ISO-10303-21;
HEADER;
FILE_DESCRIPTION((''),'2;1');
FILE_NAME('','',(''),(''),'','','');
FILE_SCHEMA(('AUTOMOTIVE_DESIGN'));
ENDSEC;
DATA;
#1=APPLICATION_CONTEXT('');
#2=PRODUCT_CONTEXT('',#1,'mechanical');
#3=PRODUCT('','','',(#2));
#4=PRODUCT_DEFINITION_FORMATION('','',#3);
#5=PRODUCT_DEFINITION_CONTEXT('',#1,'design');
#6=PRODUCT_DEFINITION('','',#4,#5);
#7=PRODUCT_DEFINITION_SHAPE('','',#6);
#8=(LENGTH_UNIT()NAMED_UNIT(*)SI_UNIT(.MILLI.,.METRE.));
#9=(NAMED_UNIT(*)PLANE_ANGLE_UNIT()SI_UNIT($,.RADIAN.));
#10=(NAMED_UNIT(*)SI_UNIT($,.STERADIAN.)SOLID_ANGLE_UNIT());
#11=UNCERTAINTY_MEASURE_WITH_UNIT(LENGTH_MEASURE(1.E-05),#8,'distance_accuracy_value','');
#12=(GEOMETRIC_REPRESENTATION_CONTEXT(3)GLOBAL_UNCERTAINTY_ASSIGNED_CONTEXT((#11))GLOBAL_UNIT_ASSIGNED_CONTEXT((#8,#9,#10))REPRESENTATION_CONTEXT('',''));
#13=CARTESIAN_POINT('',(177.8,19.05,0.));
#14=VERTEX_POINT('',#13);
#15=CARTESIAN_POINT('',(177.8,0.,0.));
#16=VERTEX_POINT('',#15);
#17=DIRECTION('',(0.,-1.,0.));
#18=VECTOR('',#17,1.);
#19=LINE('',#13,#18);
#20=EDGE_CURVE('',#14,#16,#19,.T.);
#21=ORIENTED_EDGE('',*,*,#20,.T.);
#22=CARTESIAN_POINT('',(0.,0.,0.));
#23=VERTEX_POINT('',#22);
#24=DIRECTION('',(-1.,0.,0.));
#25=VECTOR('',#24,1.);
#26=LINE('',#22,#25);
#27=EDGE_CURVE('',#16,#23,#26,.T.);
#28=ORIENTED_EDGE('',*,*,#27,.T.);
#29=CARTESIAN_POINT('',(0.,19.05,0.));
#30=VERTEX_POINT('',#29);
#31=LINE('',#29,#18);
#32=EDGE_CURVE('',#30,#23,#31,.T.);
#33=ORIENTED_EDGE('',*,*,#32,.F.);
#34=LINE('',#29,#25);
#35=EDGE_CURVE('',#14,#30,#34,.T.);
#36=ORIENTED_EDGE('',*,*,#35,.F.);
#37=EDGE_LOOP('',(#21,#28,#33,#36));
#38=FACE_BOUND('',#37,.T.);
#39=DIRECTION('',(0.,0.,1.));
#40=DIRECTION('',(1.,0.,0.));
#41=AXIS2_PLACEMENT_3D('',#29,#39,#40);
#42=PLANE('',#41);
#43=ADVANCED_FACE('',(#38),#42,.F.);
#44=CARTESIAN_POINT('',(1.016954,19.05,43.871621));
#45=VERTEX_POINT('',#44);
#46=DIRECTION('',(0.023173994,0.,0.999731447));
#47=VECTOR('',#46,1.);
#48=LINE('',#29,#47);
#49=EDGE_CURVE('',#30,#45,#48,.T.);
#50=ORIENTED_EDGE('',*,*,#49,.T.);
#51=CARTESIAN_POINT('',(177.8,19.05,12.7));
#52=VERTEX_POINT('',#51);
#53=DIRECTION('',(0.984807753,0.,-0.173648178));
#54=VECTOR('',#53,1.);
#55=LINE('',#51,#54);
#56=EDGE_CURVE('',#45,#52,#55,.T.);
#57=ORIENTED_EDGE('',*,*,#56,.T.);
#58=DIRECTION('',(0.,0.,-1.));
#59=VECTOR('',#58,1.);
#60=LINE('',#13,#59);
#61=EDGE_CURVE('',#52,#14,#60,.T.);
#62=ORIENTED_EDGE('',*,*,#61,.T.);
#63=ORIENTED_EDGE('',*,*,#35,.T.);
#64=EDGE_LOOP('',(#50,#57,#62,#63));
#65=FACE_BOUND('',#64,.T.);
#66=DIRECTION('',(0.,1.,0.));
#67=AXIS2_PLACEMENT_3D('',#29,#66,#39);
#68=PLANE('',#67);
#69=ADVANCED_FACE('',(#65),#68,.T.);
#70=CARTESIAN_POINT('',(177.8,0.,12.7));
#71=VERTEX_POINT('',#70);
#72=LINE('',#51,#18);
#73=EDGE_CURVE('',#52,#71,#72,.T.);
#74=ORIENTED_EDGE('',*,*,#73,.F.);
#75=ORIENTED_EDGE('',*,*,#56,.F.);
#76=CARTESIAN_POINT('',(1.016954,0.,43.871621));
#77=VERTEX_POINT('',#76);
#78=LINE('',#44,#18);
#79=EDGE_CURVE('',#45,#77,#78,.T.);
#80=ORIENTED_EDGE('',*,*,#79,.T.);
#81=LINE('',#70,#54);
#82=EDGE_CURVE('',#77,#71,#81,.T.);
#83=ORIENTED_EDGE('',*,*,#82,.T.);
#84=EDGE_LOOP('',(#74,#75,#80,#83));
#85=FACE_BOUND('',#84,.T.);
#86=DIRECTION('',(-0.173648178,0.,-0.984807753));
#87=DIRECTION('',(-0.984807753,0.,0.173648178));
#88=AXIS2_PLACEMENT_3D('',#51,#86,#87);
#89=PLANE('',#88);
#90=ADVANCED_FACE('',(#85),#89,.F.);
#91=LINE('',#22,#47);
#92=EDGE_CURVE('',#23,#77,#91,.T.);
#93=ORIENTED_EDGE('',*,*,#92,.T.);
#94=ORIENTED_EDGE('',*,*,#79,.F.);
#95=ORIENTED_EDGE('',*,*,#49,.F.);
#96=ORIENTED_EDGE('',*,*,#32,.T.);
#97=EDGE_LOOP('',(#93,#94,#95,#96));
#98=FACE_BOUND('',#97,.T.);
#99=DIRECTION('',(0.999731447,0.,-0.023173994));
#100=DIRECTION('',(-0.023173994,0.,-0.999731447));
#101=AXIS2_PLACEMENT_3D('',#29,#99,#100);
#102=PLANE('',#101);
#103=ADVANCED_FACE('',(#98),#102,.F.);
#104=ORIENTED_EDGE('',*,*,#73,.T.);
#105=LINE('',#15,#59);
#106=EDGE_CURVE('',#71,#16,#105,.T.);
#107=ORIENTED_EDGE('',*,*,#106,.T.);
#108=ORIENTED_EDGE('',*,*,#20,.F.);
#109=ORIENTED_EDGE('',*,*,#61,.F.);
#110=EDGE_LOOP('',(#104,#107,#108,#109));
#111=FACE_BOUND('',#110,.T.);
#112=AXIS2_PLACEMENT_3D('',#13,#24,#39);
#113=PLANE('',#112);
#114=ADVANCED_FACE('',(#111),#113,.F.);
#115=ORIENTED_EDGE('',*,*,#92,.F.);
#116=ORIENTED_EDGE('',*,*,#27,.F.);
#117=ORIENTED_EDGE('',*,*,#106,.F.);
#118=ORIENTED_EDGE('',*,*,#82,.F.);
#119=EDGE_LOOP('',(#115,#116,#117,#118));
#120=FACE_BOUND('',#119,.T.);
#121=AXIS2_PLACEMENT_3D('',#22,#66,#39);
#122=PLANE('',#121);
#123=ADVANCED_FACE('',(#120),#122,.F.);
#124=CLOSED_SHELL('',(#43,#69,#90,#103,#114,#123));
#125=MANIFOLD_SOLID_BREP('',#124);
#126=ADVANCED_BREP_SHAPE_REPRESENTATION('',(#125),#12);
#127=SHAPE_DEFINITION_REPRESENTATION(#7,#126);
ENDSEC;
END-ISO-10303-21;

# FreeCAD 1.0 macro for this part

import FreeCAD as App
import Part
import Sketcher

V = App.Vector
Q = App.Units.Quantity


def add_polygon(sketch, points):
    """Adds a closed chain of lines whose ends are joined by coincident constraints."""
    first, n = sketch.GeometryCount, len(points)
    for a, b in zip(points, points[1:] + points[:1]):
        sketch.addGeometry(Part.LineSegment(App.Vector(*a, 0), App.Vector(*b, 0)), False)
    for i in range(n):
        sketch.addConstraint(Sketcher.Constraint("Coincident", first + i, 2, first + (i + 1) % n, 1))

doc = App.newDocument("Part")
body = doc.addObject("PartDesign::Body", "Body")

# Sketch on XZ plane
sketch1 = body.newObject("Sketcher::SketchObject", "Sketch")
sketch1.AttachmentSupport = (doc.getObject("XZ_Plane"), [""])
sketch1.MapMode = "FlatFace"
add_polygon(sketch1, [(178, 0), (0, 0), (1, 44), (178, 13)])  # lines 0-3
sketch1.addConstraint([
    Sketcher.Constraint("Horizontal", 0),
    Sketcher.Constraint("Vertical", 3),
    Sketcher.Constraint("Coincident", 0, 2, -1, 1),
    Sketcher.Constraint("DistanceX", 0, 2, 0, 1, Q("7 in")),
    Sketcher.Constraint("DistanceY", 3, 2, 3, 1, Q("0.5 in")),
    Sketcher.Constraint("Angle", 2, Q("-10 deg")),
    Sketcher.Constraint("Distance", 2, 179.51021),
])
pad1 = body.newObject("PartDesign::Pad", "Pad")
pad1.Profile = sketch1
pad1.Length = Q("0.75 in")
pad1.Reversed = True

doc.recompute()
